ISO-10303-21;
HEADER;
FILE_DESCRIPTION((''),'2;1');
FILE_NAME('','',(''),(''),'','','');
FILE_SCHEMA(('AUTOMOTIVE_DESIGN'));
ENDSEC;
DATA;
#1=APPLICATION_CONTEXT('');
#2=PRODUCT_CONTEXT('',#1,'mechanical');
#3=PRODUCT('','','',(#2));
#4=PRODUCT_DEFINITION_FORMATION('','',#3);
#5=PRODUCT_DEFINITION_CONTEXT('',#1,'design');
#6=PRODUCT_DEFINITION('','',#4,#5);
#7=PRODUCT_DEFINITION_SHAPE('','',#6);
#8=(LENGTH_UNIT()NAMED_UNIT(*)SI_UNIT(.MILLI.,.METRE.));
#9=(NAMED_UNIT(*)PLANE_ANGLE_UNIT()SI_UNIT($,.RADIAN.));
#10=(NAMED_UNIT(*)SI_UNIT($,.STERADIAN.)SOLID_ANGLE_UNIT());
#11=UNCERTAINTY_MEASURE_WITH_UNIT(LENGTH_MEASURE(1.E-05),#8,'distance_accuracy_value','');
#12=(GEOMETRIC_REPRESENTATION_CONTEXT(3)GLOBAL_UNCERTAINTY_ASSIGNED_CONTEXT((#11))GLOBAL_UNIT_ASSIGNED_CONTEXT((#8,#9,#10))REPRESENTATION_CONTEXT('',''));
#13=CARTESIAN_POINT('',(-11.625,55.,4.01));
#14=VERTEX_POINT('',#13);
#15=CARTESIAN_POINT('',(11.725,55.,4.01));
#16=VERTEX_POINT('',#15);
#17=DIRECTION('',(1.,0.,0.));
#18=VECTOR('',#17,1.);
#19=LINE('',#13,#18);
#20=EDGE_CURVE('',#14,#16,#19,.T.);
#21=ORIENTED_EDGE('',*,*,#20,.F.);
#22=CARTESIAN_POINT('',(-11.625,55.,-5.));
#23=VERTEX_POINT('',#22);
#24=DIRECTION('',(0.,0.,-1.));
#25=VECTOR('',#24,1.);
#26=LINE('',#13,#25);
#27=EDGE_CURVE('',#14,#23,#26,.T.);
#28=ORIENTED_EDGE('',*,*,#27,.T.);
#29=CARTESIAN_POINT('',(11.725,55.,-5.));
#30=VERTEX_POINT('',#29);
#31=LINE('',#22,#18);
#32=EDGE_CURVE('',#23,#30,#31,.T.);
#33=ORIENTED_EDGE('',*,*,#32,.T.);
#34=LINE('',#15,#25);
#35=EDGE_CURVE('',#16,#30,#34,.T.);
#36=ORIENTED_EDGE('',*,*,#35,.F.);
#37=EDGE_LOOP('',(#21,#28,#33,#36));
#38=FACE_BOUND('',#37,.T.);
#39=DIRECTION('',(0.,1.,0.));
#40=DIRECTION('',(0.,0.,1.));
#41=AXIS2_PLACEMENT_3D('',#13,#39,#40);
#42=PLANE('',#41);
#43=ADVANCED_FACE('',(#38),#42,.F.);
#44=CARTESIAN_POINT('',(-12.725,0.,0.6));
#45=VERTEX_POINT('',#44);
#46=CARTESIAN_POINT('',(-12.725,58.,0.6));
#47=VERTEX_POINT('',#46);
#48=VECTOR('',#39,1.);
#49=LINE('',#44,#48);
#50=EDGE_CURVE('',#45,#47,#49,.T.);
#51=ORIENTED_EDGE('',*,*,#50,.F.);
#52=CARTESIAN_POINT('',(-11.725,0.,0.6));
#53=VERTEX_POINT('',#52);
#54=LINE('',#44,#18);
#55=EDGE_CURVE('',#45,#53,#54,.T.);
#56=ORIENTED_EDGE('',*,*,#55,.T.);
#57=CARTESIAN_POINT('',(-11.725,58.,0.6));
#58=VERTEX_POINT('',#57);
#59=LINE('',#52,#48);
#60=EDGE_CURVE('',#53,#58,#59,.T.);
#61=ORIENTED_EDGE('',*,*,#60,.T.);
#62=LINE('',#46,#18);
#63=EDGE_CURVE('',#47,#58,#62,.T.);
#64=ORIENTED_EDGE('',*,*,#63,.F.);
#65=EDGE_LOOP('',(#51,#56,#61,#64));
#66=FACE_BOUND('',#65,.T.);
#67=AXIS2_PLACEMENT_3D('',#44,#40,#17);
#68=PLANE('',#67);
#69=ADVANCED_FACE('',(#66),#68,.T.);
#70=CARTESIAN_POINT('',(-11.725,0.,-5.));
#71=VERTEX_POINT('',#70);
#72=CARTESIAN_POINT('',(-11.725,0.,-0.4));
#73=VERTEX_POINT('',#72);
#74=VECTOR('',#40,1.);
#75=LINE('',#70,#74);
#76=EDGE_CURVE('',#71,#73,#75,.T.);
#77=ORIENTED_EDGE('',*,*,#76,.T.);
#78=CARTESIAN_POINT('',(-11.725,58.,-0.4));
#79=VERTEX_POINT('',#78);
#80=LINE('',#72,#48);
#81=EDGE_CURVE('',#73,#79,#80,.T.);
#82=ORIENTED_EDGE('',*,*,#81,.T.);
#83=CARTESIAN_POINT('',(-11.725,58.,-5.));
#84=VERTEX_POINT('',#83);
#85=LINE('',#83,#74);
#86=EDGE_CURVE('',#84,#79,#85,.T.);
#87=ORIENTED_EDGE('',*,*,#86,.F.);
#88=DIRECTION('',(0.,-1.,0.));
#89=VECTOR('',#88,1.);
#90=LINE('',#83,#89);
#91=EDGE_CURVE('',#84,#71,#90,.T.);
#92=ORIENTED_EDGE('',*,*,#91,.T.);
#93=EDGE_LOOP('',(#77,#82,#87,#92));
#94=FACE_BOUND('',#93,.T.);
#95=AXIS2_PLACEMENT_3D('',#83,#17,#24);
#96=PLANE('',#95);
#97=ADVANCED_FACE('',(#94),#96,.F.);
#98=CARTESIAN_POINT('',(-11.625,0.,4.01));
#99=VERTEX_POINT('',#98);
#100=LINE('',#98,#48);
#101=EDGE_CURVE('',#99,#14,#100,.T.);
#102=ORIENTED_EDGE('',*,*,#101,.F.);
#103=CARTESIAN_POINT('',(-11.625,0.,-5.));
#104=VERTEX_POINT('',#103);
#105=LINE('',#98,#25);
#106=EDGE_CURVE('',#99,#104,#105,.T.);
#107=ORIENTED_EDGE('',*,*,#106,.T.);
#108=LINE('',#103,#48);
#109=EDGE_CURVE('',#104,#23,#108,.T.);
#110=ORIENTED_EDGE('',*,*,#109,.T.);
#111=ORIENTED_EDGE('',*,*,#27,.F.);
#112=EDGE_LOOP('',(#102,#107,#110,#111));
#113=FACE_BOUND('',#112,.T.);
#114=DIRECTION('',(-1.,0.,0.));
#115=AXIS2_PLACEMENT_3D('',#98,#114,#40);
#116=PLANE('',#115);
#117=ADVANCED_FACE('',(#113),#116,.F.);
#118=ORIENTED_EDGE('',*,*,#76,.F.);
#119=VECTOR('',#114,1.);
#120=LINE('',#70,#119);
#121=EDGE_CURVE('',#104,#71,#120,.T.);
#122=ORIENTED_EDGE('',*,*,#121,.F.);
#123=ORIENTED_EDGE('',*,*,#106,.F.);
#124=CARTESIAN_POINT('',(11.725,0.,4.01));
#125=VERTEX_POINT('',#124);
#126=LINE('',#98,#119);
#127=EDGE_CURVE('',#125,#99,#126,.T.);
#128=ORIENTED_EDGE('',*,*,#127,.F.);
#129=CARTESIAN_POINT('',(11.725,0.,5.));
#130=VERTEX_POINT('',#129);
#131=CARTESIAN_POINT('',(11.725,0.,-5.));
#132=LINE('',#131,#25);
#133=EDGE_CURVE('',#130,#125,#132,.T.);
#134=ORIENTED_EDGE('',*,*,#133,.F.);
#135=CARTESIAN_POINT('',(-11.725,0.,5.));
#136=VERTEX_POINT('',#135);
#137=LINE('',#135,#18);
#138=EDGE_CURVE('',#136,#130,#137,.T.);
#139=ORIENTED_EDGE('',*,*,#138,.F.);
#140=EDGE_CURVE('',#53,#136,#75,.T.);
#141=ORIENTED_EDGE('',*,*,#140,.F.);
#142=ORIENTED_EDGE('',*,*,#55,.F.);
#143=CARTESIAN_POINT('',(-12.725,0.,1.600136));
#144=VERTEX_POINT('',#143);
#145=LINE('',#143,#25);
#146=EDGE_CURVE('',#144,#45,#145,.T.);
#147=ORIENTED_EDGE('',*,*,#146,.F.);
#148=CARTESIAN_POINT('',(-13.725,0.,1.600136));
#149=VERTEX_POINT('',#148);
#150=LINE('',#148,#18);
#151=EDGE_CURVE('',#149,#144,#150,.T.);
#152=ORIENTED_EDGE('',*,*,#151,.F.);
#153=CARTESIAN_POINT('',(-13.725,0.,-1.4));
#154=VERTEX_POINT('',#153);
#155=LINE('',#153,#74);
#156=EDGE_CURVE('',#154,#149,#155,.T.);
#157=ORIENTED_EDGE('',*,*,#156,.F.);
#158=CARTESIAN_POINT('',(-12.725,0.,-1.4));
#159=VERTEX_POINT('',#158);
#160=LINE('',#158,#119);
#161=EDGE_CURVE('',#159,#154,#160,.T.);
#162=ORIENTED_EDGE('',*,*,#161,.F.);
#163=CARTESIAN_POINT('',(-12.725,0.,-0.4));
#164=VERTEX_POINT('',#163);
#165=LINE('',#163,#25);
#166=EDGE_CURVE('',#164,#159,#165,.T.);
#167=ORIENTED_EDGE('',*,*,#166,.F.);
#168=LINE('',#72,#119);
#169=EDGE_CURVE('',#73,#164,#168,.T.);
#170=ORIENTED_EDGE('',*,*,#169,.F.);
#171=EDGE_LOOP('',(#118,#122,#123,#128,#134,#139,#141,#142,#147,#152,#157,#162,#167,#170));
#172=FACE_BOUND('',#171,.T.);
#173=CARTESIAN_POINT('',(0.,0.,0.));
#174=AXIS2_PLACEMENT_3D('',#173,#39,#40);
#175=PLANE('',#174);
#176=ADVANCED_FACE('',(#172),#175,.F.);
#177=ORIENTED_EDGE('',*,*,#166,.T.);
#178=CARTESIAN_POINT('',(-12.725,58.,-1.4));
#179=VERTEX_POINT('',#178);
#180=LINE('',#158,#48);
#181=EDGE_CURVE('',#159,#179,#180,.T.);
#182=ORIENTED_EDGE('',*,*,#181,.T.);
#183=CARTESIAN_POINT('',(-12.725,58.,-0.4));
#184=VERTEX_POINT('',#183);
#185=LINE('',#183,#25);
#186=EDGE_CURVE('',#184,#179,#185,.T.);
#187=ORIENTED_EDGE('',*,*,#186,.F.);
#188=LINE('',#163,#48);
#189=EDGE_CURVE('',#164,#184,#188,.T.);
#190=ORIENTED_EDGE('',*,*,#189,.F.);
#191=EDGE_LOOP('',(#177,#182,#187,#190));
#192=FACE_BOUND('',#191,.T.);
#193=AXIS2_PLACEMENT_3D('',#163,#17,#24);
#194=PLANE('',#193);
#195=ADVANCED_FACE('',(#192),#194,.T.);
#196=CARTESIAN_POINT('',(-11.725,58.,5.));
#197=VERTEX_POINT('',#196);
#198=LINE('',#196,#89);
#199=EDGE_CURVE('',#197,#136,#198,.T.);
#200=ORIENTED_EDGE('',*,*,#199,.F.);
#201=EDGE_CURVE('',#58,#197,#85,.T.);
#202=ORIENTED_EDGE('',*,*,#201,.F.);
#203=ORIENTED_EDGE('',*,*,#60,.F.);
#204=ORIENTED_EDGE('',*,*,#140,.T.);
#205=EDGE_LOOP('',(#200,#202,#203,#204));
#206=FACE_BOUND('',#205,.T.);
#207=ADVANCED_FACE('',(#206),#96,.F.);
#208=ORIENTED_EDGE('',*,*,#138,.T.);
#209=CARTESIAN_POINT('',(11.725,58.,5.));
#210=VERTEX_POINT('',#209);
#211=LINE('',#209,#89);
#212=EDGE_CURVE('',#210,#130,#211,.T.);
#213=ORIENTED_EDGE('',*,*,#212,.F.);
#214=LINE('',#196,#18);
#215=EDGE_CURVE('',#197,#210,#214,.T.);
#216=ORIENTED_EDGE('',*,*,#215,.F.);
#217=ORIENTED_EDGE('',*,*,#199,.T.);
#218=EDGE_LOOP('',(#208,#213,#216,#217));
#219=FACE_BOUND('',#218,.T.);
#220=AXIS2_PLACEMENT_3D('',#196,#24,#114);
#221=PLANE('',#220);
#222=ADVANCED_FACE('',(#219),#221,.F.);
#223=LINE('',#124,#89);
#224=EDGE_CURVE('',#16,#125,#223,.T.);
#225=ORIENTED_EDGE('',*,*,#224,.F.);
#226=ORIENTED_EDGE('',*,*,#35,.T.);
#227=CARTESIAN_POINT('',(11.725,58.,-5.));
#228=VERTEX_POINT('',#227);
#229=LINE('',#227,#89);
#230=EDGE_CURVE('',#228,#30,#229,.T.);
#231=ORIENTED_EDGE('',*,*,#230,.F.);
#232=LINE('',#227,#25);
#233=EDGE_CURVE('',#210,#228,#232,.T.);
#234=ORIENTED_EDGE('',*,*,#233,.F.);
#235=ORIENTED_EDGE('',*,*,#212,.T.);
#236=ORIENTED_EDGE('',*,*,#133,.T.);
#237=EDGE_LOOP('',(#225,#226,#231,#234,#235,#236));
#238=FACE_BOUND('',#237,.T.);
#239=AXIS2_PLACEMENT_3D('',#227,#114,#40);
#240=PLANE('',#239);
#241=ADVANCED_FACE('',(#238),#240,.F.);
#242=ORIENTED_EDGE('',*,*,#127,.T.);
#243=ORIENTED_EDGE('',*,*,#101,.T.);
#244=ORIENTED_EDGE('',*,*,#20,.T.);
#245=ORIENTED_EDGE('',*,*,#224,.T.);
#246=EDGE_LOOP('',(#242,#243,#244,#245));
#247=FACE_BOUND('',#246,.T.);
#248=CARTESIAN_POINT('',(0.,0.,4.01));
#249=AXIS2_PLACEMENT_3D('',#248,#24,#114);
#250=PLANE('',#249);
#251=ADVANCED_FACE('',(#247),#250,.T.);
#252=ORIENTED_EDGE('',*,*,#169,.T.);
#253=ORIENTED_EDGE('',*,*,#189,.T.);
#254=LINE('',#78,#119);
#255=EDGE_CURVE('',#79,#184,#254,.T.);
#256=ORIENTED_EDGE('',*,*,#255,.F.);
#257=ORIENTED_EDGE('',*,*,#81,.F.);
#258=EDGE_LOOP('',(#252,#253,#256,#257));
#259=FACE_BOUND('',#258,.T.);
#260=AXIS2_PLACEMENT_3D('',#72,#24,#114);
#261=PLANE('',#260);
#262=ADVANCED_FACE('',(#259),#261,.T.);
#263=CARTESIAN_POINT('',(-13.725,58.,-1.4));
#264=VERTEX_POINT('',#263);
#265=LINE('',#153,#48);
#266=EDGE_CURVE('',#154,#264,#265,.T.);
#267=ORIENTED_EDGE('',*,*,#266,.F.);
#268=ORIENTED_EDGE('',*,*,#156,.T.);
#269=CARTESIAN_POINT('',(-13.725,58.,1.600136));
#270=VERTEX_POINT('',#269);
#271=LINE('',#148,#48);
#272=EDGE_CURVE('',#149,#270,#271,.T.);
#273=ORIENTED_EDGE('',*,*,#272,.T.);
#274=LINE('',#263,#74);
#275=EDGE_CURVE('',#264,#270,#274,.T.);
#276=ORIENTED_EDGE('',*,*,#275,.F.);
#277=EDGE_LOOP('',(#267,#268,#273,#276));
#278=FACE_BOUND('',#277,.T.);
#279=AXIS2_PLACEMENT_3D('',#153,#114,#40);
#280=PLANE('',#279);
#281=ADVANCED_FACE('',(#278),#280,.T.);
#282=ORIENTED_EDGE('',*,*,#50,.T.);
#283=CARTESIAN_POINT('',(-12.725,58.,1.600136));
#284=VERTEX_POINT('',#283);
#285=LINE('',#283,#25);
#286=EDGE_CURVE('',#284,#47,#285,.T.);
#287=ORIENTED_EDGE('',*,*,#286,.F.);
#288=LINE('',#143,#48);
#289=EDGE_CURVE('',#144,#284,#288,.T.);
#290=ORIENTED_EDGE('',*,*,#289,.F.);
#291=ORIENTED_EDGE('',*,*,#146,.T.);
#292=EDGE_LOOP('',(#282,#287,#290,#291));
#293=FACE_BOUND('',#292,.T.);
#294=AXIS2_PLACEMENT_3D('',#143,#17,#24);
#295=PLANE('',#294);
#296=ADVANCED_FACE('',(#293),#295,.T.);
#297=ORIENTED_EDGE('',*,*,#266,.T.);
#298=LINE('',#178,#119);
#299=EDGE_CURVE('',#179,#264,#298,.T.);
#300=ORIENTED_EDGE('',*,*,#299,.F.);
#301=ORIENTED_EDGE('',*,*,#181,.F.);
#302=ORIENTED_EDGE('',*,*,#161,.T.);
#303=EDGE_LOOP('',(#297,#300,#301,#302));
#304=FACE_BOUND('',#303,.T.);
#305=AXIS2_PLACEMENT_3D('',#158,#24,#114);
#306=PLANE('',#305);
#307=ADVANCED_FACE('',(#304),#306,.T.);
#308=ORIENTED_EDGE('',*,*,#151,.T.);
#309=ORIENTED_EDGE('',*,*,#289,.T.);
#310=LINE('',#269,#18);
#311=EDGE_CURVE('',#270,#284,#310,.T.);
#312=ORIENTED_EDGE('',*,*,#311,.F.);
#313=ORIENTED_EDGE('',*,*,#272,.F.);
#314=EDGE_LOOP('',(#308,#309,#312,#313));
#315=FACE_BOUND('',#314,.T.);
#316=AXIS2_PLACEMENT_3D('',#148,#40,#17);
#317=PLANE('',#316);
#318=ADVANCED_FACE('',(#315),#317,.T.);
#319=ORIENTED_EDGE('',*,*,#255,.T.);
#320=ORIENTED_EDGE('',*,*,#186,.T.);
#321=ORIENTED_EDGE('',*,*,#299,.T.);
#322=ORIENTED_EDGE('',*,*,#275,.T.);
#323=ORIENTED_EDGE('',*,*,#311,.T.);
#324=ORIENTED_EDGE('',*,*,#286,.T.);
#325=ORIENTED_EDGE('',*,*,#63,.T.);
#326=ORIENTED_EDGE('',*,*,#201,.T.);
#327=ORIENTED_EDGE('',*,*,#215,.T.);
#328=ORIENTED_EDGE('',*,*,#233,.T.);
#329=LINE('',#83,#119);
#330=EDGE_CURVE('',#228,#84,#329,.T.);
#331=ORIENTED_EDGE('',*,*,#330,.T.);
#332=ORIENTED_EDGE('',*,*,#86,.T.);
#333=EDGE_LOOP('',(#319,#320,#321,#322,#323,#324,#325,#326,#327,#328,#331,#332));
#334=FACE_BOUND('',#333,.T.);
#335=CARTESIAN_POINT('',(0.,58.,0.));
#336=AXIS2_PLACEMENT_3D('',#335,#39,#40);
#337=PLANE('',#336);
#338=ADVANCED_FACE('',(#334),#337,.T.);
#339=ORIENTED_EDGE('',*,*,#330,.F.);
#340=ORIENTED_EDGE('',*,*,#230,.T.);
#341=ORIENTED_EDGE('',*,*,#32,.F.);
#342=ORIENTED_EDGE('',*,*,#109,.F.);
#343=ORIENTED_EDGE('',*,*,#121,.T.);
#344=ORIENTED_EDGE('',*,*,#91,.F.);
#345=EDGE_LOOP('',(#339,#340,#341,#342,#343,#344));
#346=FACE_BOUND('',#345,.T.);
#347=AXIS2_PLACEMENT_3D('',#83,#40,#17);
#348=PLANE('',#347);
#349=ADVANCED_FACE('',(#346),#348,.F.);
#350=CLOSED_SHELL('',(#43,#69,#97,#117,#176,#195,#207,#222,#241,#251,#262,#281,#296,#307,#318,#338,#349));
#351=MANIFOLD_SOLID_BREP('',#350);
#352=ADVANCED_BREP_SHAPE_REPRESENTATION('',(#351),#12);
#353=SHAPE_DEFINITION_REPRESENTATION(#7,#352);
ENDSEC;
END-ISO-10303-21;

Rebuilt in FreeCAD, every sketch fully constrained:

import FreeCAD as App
import Part
import Sketcher


def add_polygon(sketch, points):
    """Adds a closed chain of lines whose ends are joined by coincident constraints."""
    first, n = sketch.GeometryCount, len(points)
    for a, b in zip(points, points[1:] + points[:1]):
        sketch.addGeometry(Part.LineSegment(App.Vector(*a, 0), App.Vector(*b, 0)), False)
    for i in range(n):
        sketch.addConstraint(Sketcher.Constraint("Coincident", first + i, 2, first + (i + 1) % n, 1))

doc = App.newDocument("Part")
params = doc.addObject("Spreadsheet::Sheet", "Params")
for row, (alias, value) in enumerate([
    ("sketch1_height", "10 mm"),
    ("sketch1_width", "23.45 mm"),
    ("pad1_length", "58 mm"),
    ("sketch2_width", "1 mm"),
    ("pad2_length", "58 mm"),
    ("sketch3_height", "55 mm"),
    ("sketch3_width", "23.35 mm"),
    ("pocket1_length", "9.01 mm"),
], start=1):
    params.set(f"A{row}", alias)
    params.set(f"B{row}", "=" + value)
    params.setAlias(f"B{row}", alias)

body = doc.addObject("PartDesign::Body", "Body")

sketch1 = body.newObject("Sketcher::SketchObject", "Sketch")
sketch1.AttachmentSupport = (doc.getObject("XZ_Plane"), [""])
sketch1.MapMode = "FlatFace"
add_polygon(sketch1, [(-11.725, -5), (-11.725, 5), (11.725, 5), (11.725, -5)])
sketch1.addConstraint(Sketcher.Constraint("Vertical", 0))
sketch1.addConstraint(Sketcher.Constraint("Horizontal", 1))
sketch1.addConstraint(Sketcher.Constraint("Vertical", 2))
sketch1.addConstraint(Sketcher.Constraint("Horizontal", 3))
sketch1.addConstraint(Sketcher.Constraint("Symmetric", 0, 2, 2, 2, -1, 1))
sketch1.addConstraint(Sketcher.Constraint("DistanceY", 0, 1, 0, 2, 10.0))
sketch1.addConstraint(Sketcher.Constraint("DistanceX", 1, 1, 1, 2, 23.45))
sketch1.setExpression("Constraints[9]", "Params.sketch1_height")
sketch1.setExpression("Constraints[10]", "Params.sketch1_width")
pad1 = body.newObject("PartDesign::Pad", "Pad")
pad1.Profile = sketch1
pad1.setExpression("Length", "Params.pad1_length")
pad1.Reversed = True

sketch2 = body.newObject("Sketcher::SketchObject", "Sketch001")
sketch2.AttachmentSupport = (doc.getObject("XZ_Plane"), [""])
sketch2.MapMode = "FlatFace"
sketch2.AttachmentOffset = App.Placement(App.Vector(0, 0, -58), App.Rotation())
add_polygon(sketch2, [(-11.725, -0.4), (-12.725, -0.4), (-12.725, -1.4), (-13.725, -1.4), (-13.725, 1.600136), (-12.725, 1.600136), (-12.725, 0.6), (-11.725, 0.6)])
sketch2.addConstraint(Sketcher.Constraint("Horizontal", 0))
sketch2.addConstraint(Sketcher.Constraint("Vertical", 1))
sketch2.addConstraint(Sketcher.Constraint("Horizontal", 2))
sketch2.addConstraint(Sketcher.Constraint("Vertical", 3))
sketch2.addConstraint(Sketcher.Constraint("Horizontal", 4))
sketch2.addConstraint(Sketcher.Constraint("Vertical", 5))
sketch2.addConstraint(Sketcher.Constraint("Horizontal", 6))
sketch2.addConstraint(Sketcher.Constraint("Vertical", 7))
sketch2.addConstraint(Sketcher.Constraint("Vertical", 1, 2, 4, 2))
sketch2.addConstraint(Sketcher.Constraint("Equal", 0, 2))
sketch2.addConstraint(Sketcher.Constraint("Equal", 6, 1))
sketch2.addConstraint(Sketcher.Constraint("Equal", 1, 7))
sketch2.addConstraint(Sketcher.Constraint("DistanceX", 0, 2, 0, 1, 1.0))
sketch2.addConstraint(Sketcher.Constraint("DistanceY", 0, 2, -1, 1, 0.4))
sketch2.addConstraint(Sketcher.Constraint("DistanceX", 0, 2, -1, 1, 12.725))
sketch2.addConstraint(Sketcher.Constraint("DistanceY", 3, 1, 3, 2, 3.000136))
sketch2.setExpression("Constraints[20]", "Params.sketch2_width")
pad2 = body.newObject("PartDesign::Pad", "Pad001")
pad2.Profile = sketch2
pad2.setExpression("Length", "Params.pad2_length")

sketch3 = body.newObject("Sketcher::SketchObject", "Sketch002")
sketch3.AttachmentSupport = (doc.getObject("XY_Plane"), [""])
sketch3.MapMode = "FlatFace"
sketch3.AttachmentOffset = App.Placement(App.Vector(0, 0, -5), App.Rotation())
add_polygon(sketch3, [(11.725, 55), (11.725, 0), (-11.625, 0), (-11.625, 55)])
sketch3.addConstraint(Sketcher.Constraint("Vertical", 0))
sketch3.addConstraint(Sketcher.Constraint("Horizontal", 1))
sketch3.addConstraint(Sketcher.Constraint("Vertical", 2))
sketch3.addConstraint(Sketcher.Constraint("Horizontal", 3))
sketch3.addConstraint(Sketcher.Constraint("PointOnObject", 0, 2, -1))
sketch3.addConstraint(Sketcher.Constraint("DistanceY", 0, 2, 0, 1, 55.0))
sketch3.addConstraint(Sketcher.Constraint("DistanceX", 1, 2, 1, 1, 23.35))
sketch3.addConstraint(Sketcher.Constraint("DistanceX", -1, 1, 0, 2, 11.725))
sketch3.setExpression("Constraints[9]", "Params.sketch3_height")
sketch3.setExpression("Constraints[10]", "Params.sketch3_width")
pocket1 = body.newObject("PartDesign::Pocket", "Pocket")
pocket1.Profile = sketch3
pocket1.setExpression("Length", "Params.pocket1_length")
pocket1.Reversed = True

doc.recompute()
